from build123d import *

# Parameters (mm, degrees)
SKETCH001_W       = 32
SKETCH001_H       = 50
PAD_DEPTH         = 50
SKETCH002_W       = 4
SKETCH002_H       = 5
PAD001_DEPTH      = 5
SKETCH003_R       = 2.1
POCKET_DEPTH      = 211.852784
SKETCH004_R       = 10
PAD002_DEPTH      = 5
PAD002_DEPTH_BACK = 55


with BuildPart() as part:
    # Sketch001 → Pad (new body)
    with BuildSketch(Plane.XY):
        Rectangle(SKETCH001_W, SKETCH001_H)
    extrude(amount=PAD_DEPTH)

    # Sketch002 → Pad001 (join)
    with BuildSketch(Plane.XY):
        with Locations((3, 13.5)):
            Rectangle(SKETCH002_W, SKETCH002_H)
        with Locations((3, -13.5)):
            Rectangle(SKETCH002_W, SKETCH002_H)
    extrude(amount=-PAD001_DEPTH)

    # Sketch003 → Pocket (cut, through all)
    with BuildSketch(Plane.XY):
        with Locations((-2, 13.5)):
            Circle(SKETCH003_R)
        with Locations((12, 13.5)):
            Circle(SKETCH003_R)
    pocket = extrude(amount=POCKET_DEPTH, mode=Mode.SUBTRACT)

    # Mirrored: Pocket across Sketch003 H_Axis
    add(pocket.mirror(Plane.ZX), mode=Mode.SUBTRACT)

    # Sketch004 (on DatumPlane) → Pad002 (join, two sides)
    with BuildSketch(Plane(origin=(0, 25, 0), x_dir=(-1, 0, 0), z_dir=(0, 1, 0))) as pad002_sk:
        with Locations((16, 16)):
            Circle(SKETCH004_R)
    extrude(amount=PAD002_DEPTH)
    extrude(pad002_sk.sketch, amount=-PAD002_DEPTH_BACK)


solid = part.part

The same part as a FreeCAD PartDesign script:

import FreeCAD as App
import Part
import Sketcher
from FreeCAD import Vector

doc = App.newDocument("Part")
body = doc.addObject("PartDesign::Body", "Body")

sketch1 = doc.addObject("Sketcher::SketchObject", "Sketch")
body.addObject(sketch1)
sketch1.AttachmentSupport = (doc.XY_Plane, [""])
sketch1.MapMode = "FlatFace"
sketch1.addGeometry(Part.LineSegment(Vector(-16, 25, 0), Vector(-16, -25, 0)), False)
sketch1.addGeometry(Part.LineSegment(Vector(-16, -25, 0), Vector(16, -25, 0)), False)
sketch1.addGeometry(Part.LineSegment(Vector(16, -25, 0), Vector(16, 25, 0)), False)
sketch1.addGeometry(Part.LineSegment(Vector(16, 25, 0), Vector(-16, 25, 0)), False)
sketch1.addConstraint(Sketcher.Constraint("Coincident", 0, 2, 1, 1))
sketch1.addConstraint(Sketcher.Constraint("Coincident", 1, 2, 2, 1))
sketch1.addConstraint(Sketcher.Constraint("Coincident", 2, 2, 3, 1))
sketch1.addConstraint(Sketcher.Constraint("Coincident", 3, 2, 0, 1))
sketch1.addConstraint(Sketcher.Constraint("Vertical", 0))
sketch1.addConstraint(Sketcher.Constraint("Horizontal", 1))
sketch1.addConstraint(Sketcher.Constraint("Vertical", 2))
sketch1.addConstraint(Sketcher.Constraint("Horizontal", 3))
sketch1.addConstraint(Sketcher.Constraint("Symmetric", 0, 2, 2, 2, -1, 1))
sketch1.addConstraint(Sketcher.Constraint("DistanceX", 1, 1, 1, 2, 32.0))
sketch1.addConstraint(Sketcher.Constraint("DistanceY", 0, 2, 0, 1, 50.0))
pad1 = doc.addObject("PartDesign::Pad", "Pad")
body.addObject(pad1)
pad1.Profile = sketch1
pad1.Length = 50

sketch2 = doc.addObject("Sketcher::SketchObject", "Sketch001")
body.addObject(sketch2)
sketch2.AttachmentSupport = (doc.XY_Plane, [""])
sketch2.MapMode = "FlatFace"
sketch2.addGeometry(Part.LineSegment(Vector(1, 16, 0), Vector(1, 11, 0)), False)
sketch2.addGeometry(Part.LineSegment(Vector(1, 11, 0), Vector(5, 11, 0)), False)
sketch2.addGeometry(Part.LineSegment(Vector(5, 11, 0), Vector(5, 16, 0)), False)
sketch2.addGeometry(Part.LineSegment(Vector(5, 16, 0), Vector(1, 16, 0)), False)
sketch2.addGeometry(Part.LineSegment(Vector(1, -11, 0), Vector(1, -16, 0)), False)
sketch2.addGeometry(Part.LineSegment(Vector(1, -16, 0), Vector(5, -16, 0)), False)
sketch2.addGeometry(Part.LineSegment(Vector(5, -16, 0), Vector(5, -11, 0)), False)
sketch2.addGeometry(Part.LineSegment(Vector(5, -11, 0), Vector(1, -11, 0)), False)
sketch2.addConstraint(Sketcher.Constraint("Coincident", 0, 2, 1, 1))
sketch2.addConstraint(Sketcher.Constraint("Coincident", 1, 2, 2, 1))
sketch2.addConstraint(Sketcher.Constraint("Coincident", 2, 2, 3, 1))
sketch2.addConstraint(Sketcher.Constraint("Coincident", 3, 2, 0, 1))
sketch2.addConstraint(Sketcher.Constraint("Coincident", 4, 2, 5, 1))
sketch2.addConstraint(Sketcher.Constraint("Coincident", 5, 2, 6, 1))
sketch2.addConstraint(Sketcher.Constraint("Coincident", 6, 2, 7, 1))
sketch2.addConstraint(Sketcher.Constraint("Coincident", 7, 2, 4, 1))
sketch2.addConstraint(Sketcher.Constraint("Vertical", 0))
sketch2.addConstraint(Sketcher.Constraint("Horizontal", 1))
sketch2.addConstraint(Sketcher.Constraint("Vertical", 2))
sketch2.addConstraint(Sketcher.Constraint("Horizontal", 3))
sketch2.addConstraint(Sketcher.Constraint("Vertical", 4))
sketch2.addConstraint(Sketcher.Constraint("Horizontal", 5))
sketch2.addConstraint(Sketcher.Constraint("Vertical", 6))
sketch2.addConstraint(Sketcher.Constraint("Horizontal", 7))
sketch2.addConstraint(Sketcher.Constraint("Symmetric", 3, 2, 4, 2, -1))
sketch2.addConstraint(Sketcher.Constraint("Symmetric", 1, 2, 6, 2, -1))
sketch2.addConstraint(Sketcher.Constraint("DistanceX", 1, 1, 1, 2, 4.0))
sketch2.addConstraint(Sketcher.Constraint("DistanceY", 0, 2, 0, 1, 5.0))
sketch2.addConstraint(Sketcher.Constraint("DistanceX", -1, 1, 0, 2, 1.0))
sketch2.addConstraint(Sketcher.Constraint("DistanceY", -1, 1, 0, 2, 11.0))
pad2 = doc.addObject("PartDesign::Pad", "Pad001")
body.addObject(pad2)
pad2.Profile = sketch2
pad2.Length = 5
pad2.Reversed = True

sketch3 = doc.addObject("Sketcher::SketchObject", "Sketch002")
body.addObject(sketch3)
sketch3.AttachmentSupport = (doc.XY_Plane, [""])
sketch3.MapMode = "FlatFace"
sketch3.addGeometry(Part.Circle(Vector(-2, 13.5, 0), Vector(0, 0, 1), 2.1), False)
sketch3.addGeometry(Part.Circle(Vector(12, 13.5, 0), Vector(0, 0, 1), 2.1), False)
sketch3.addConstraint(Sketcher.Constraint("Equal", 0, 1))
sketch3.addConstraint(Sketcher.Constraint("Horizontal", 0, 3, 1, 3))
sketch3.addConstraint(Sketcher.Constraint("Diameter", 0, 4.2))
sketch3.addConstraint(Sketcher.Constraint("DistanceX", 0, 3, -1, 1, 2.0))
sketch3.addConstraint(Sketcher.Constraint("DistanceX", -1, 1, 1, 3, 12.0))
sketch3.addConstraint(Sketcher.Constraint("DistanceY", -1, 1, 0, 3, 13.5))
pocket1 = doc.addObject("PartDesign::Pocket", "Pocket")
body.addObject(pocket1)
pocket1.Profile = sketch3
pocket1.Type = "ThroughAll"
pocket1.Reversed = True
doc.recompute()

mirrored = doc.addObject("PartDesign::Mirrored", "Mirrored")
body.addObject(mirrored)
mirrored.Originals = [pocket1]
mirrored.MirrorPlane = (doc.XZ_Plane, [""])
body.Tip = mirrored

sketch4 = doc.addObject("Sketcher::SketchObject", "Sketch003")
body.addObject(sketch4)
sketch4.AttachmentSupport = (doc.XZ_Plane, [""])
sketch4.MapMode = "FlatFace"
sketch4.AttachmentOffset = App.Placement(Vector(0, 0, -25), App.Rotation())
sketch4.addGeometry(Part.Circle(Vector(-16, 16, 0), Vector(0, 0, 1), 10), False)
sketch4.addConstraint(Sketcher.Constraint("Diameter", 0, 20.0))
sketch4.addConstraint(Sketcher.Constraint("DistanceX", 0, 3, -1, 1, 16.0))
sketch4.addConstraint(Sketcher.Constraint("DistanceY", -1, 1, 0, 3, 16.0))
pad3 = doc.addObject("PartDesign::Pad", "Pad002")
body.addObject(pad3)
pad3.Profile = sketch4
pad3.Type = "TwoLengths"
pad3.Length = 5
pad3.Length2 = 55
pad3.Reversed = True

doc.recompute()
